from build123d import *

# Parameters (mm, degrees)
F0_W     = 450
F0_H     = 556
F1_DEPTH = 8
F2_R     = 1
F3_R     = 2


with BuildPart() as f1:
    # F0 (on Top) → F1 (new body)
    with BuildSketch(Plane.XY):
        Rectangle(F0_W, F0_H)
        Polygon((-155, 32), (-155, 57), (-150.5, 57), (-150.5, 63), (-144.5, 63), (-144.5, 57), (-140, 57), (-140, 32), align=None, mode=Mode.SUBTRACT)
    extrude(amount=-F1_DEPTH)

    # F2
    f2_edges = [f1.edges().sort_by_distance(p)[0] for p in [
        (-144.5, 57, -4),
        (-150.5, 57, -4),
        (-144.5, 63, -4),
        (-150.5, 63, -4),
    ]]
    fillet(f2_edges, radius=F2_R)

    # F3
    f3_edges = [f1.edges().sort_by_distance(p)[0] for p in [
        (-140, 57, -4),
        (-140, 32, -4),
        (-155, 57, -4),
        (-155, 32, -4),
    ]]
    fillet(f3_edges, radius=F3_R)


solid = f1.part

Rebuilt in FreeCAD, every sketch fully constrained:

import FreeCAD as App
import Part
import Sketcher

V = App.Vector


def edges_at(feature, points):
    """Names of the edges that pass closest to the given points."""
    edges = feature.Shape.Edges
    near = lambda p: min(range(len(edges)), key=lambda i: edges[i].distToShape(Part.Vertex(*p))[0])
    return sorted({f"Edge{near(p) + 1}" for p in points})

doc = App.newDocument("Part")
body = doc.addObject("PartDesign::Body", "Body")

# Sketch on XY plane
sketch1 = body.newObject("Sketcher::SketchObject", "Sketch")
sketch1.AttachmentSupport = (doc.getObject("XY_Plane"), [""])
sketch1.MapMode = "FlatFace"
sketch1.addGeometry([
    Part.LineSegment(V(-225, 278, 0), V(-225, -278, 0)),  # 0
    Part.LineSegment(V(-225, -278, 0), V(225, -278, 0)),  # 1
    Part.LineSegment(V(225, -278, 0), V(225, 278, 0)),  # 2
    Part.LineSegment(V(225, 278, 0), V(-225, 278, 0)),  # 3
    Part.LineSegment(V(-140, 32, 0), V(-155, 32, 0)),  # 4
    Part.LineSegment(V(-155, 32, 0), V(-155, 57, 0)),  # 5
    Part.LineSegment(V(-155, 57, 0), V(-150.5, 57, 0)),  # 6
    Part.LineSegment(V(-150.5, 57, 0), V(-150.5, 63, 0)),  # 7
    Part.LineSegment(V(-150.5, 63, 0), V(-144.5, 63, 0)),  # 8
    Part.LineSegment(V(-144.5, 63, 0), V(-144.5, 57, 0)),  # 9
    Part.LineSegment(V(-144.5, 57, 0), V(-140, 57, 0)),  # 10
    Part.LineSegment(V(-140, 57, 0), V(-140, 32, 0)),  # 11
], False)
sketch1.addConstraint([
    Sketcher.Constraint("Coincident", 0, 2, 1, 1),
    Sketcher.Constraint("Coincident", 1, 2, 2, 1),
    Sketcher.Constraint("Coincident", 2, 2, 3, 1),
    Sketcher.Constraint("Coincident", 3, 2, 0, 1),
    Sketcher.Constraint("Coincident", 4, 2, 5, 1),
    Sketcher.Constraint("Coincident", 5, 2, 6, 1),
    Sketcher.Constraint("Coincident", 6, 2, 7, 1),
    Sketcher.Constraint("Coincident", 7, 2, 8, 1),
    Sketcher.Constraint("Coincident", 8, 2, 9, 1),
    Sketcher.Constraint("Coincident", 9, 2, 10, 1),
    Sketcher.Constraint("Coincident", 10, 2, 11, 1),
    Sketcher.Constraint("Coincident", 11, 2, 4, 1),
    Sketcher.Constraint("Vertical", 0),
    Sketcher.Constraint("Horizontal", 1),
    Sketcher.Constraint("Vertical", 2),
    Sketcher.Constraint("Horizontal", 3),
    Sketcher.Constraint("Horizontal", 4),
    Sketcher.Constraint("Vertical", 5),
    Sketcher.Constraint("Horizontal", 6),
    Sketcher.Constraint("Vertical", 7),
    Sketcher.Constraint("Horizontal", 8),
    Sketcher.Constraint("Vertical", 9),
    Sketcher.Constraint("Horizontal", 10),
    Sketcher.Constraint("Vertical", 11),
    Sketcher.Constraint("Symmetric", 0, 2, 2, 2, -1, 1),
    Sketcher.Constraint("Horizontal", 6, 2, 9, 2),
    Sketcher.Constraint("Equal", 6, 10),
    Sketcher.Constraint("Equal", 8, 7),
    Sketcher.Constraint("DistanceX", 1, 1, 1, 2, 450.0),
    Sketcher.Constraint("DistanceX", 4, 2, 4, 1, 15.0),
    Sketcher.Constraint("DistanceX", 8, 1, 8, 2, 6.0),
    Sketcher.Constraint("DistanceY", 0, 2, 0, 1, 556.0),
    Sketcher.Constraint("DistanceY", 5, 1, 5, 2, 25.0),
    Sketcher.Constraint("DistanceX", 4, 2, -1, 1, 155.0),
    Sketcher.Constraint("DistanceY", -1, 1, 4, 2, 32.0),
])
pad1 = body.newObject("PartDesign::Pad", "Pad")
pad1.Profile = sketch1
pad1.Length = 8
pad1.Reversed = True
doc.recompute()

fillet = body.newObject("PartDesign::Fillet", "Fillet")
fillet.Base = (pad1, edges_at(pad1, [
    (-144.5, 57, -4),
    (-150.5, 57, -4),
    (-144.5, 63, -4),
    (-150.5, 63, -4),
]))
fillet.Radius = 1
doc.recompute()

fillet2 = body.newObject("PartDesign::Fillet", "Fillet001")
fillet2.Base = (fillet, edges_at(fillet, [
    (-140, 57, -4),
    (-140, 32, -4),
    (-155, 57, -4),
    (-155, 32, -4),
]))
fillet2.Radius = 2

doc.recompute()
